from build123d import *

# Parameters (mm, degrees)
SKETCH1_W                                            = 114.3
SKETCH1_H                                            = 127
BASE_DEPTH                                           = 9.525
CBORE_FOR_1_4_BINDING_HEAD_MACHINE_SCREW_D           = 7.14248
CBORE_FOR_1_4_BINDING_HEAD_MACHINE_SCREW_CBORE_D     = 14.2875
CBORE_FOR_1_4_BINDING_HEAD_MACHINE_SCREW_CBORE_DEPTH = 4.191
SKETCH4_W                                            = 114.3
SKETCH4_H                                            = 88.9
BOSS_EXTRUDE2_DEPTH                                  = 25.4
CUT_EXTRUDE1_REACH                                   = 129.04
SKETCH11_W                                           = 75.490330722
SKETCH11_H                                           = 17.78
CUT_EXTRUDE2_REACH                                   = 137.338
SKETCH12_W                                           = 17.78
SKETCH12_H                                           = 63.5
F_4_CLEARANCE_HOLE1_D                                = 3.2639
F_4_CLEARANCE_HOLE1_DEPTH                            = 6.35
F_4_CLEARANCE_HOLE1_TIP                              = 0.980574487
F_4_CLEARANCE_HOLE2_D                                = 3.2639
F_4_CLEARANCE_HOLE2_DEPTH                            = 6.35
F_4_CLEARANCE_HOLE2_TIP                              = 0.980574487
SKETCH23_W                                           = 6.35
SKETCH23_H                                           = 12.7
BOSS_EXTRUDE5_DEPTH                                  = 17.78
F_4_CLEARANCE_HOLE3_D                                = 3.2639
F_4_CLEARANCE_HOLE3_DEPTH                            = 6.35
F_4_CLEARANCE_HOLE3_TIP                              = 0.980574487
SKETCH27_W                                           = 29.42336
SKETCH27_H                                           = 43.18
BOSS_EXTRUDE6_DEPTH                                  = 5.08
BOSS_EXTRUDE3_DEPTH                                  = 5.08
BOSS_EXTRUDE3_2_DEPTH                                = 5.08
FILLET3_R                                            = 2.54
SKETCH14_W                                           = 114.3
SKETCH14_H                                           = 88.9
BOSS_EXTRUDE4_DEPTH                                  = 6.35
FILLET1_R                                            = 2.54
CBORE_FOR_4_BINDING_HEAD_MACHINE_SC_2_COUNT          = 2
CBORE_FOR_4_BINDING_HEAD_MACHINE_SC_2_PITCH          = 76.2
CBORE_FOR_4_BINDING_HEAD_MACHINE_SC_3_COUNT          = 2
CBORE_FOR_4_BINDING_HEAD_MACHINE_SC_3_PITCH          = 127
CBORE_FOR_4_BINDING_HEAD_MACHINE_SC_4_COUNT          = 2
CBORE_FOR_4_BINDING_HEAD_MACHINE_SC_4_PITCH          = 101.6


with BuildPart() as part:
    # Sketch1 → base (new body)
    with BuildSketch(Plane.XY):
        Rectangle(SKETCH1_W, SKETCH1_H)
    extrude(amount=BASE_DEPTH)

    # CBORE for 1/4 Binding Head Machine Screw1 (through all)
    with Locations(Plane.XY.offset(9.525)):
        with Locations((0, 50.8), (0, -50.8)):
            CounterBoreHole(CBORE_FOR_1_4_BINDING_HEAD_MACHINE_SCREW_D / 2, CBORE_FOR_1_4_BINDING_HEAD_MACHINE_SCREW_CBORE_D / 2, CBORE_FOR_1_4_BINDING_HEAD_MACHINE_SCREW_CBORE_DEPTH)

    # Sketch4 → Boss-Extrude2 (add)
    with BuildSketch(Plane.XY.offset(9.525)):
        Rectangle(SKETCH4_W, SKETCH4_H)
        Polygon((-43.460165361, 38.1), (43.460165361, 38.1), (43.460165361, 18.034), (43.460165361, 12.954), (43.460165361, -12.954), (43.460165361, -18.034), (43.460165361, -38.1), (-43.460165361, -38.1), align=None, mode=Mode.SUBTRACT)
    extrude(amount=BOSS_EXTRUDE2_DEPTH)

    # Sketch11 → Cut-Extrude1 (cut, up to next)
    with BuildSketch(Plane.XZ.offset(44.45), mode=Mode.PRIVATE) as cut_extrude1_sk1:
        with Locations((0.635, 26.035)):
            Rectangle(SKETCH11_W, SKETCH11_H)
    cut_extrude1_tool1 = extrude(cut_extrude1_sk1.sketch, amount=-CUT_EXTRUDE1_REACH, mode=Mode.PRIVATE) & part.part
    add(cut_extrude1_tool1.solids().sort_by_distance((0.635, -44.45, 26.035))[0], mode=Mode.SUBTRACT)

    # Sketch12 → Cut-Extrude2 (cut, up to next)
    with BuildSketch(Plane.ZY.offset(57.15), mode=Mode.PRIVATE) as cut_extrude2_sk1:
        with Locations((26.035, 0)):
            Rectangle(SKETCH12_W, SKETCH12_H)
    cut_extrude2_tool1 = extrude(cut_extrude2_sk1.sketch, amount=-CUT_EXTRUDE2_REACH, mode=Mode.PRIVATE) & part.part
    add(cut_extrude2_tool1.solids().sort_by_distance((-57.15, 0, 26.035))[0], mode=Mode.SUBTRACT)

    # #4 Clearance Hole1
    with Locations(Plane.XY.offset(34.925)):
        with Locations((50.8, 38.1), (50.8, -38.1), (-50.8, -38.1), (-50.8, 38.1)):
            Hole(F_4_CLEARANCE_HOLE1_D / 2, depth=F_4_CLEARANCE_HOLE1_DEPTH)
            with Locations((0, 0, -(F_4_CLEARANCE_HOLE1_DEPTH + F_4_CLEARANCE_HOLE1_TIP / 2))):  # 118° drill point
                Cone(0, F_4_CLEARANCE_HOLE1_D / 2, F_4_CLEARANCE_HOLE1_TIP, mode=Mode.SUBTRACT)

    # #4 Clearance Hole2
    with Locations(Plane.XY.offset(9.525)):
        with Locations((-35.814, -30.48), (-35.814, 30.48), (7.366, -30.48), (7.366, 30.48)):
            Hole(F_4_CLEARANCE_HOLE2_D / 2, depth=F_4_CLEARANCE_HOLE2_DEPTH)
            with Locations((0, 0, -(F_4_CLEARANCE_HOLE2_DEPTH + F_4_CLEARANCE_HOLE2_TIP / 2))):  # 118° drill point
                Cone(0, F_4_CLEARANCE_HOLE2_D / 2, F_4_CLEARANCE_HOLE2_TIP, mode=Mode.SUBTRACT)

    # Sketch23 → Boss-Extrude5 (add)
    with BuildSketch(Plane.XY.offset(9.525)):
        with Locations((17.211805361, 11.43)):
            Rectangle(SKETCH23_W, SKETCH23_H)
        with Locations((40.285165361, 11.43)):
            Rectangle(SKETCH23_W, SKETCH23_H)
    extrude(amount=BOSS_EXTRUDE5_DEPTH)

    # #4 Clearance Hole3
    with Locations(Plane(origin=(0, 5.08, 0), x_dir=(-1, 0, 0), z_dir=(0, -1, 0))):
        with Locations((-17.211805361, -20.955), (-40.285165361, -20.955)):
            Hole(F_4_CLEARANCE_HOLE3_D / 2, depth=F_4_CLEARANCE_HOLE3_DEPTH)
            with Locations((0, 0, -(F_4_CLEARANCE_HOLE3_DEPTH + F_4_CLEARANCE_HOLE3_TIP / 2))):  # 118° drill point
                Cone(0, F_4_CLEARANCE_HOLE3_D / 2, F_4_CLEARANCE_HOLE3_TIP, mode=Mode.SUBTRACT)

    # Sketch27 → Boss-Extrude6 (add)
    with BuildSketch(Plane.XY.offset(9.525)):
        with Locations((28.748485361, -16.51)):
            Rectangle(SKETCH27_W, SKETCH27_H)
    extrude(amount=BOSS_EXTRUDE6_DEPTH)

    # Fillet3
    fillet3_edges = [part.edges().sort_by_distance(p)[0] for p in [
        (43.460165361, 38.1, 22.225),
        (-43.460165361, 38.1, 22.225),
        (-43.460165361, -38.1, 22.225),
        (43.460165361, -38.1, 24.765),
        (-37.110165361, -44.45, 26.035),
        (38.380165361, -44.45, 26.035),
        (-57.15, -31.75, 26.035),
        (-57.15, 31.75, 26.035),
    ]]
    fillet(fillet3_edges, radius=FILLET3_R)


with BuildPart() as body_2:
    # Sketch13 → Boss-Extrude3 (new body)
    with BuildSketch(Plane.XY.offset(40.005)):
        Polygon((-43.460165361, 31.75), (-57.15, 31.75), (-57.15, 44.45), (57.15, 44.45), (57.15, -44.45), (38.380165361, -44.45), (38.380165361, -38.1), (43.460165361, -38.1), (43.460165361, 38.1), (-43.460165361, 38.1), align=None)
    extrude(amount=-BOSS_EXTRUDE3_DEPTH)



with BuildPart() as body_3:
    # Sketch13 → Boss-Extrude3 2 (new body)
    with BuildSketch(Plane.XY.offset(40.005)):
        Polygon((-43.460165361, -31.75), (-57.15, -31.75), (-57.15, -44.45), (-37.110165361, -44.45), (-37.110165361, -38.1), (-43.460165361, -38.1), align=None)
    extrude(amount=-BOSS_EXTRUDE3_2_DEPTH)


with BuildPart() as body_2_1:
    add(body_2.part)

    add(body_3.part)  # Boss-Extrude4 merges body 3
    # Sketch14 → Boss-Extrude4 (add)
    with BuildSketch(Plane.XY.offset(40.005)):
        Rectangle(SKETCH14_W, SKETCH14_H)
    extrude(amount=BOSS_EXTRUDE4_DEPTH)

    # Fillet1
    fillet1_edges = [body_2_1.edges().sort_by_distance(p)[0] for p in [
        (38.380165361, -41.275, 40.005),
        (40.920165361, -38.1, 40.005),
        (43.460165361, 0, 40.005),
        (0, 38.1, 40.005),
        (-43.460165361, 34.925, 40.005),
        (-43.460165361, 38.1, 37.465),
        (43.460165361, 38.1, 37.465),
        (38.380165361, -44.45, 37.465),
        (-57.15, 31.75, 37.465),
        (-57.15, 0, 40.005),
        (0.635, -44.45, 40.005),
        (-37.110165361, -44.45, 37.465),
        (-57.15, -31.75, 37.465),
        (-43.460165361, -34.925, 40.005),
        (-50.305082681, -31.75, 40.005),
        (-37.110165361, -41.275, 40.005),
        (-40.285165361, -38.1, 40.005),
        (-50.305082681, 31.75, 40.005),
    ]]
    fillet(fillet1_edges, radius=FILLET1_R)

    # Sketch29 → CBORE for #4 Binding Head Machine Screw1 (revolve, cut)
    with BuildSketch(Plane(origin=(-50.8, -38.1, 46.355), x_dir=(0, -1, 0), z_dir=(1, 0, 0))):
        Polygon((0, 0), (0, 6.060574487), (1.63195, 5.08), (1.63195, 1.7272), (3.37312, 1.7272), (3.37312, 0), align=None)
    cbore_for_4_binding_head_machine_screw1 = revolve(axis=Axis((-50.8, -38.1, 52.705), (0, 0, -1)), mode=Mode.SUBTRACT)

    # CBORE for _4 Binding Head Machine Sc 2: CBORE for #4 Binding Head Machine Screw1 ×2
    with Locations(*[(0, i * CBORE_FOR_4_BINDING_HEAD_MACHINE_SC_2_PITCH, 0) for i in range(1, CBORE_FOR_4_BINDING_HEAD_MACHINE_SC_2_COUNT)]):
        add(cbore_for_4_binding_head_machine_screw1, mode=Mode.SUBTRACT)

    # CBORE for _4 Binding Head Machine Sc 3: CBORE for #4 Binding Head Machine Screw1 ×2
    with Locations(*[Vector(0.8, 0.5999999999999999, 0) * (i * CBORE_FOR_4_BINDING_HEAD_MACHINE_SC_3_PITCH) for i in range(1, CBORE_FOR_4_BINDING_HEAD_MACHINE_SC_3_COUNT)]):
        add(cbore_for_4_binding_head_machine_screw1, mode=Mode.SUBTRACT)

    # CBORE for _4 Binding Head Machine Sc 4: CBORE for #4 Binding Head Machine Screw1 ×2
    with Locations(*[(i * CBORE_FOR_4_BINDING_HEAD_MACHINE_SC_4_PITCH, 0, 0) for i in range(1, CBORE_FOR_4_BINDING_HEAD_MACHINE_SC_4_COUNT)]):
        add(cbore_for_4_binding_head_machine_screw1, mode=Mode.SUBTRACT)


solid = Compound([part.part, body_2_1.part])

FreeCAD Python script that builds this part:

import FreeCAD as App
import Part
import Sketcher

V = App.Vector
Q = App.Units.Quantity


def edges_at(feature, points):
    """Names of the edges that pass closest to the given points."""
    edges = feature.Shape.Edges
    near = lambda p: min(range(len(edges)), key=lambda i: edges[i].distToShape(Part.Vertex(*p))[0])
    return sorted({f"Edge{near(p) + 1}" for p in points})

doc = App.newDocument("Part")
params = doc.addObject("Spreadsheet::Sheet", "Params")
for row, (alias, value) in enumerate([
    ("sketch1_height", "5 in"),
    ("sketch1_width", "4.5 in"),
    ("pad1_length", "0.375 in"),
    ("hole_diameter", "0.2812 in"),
    ("hole_cbore_diameter", "0.5625 in"),
    ("hole_cbore_depth", "0.165 in"),
    ("sketch3_height", "3 in"),
    ("sketch3_width", "4.5 in"),
    ("sketch3_height2", "3.5 in"),
    ("pad2_length", "1 in"),
    ("sketch4_height", "0.7 in"),
    ("sketch5_width", "2.5 in"),
    ("sketch5_height", "0.7 in"),
    ("hole2_diameter", "0.1285 in"),
    ("hole2_depth", "0.25 in"),
    ("hole3_diameter", "0.1285 in"),
    ("hole3_depth", "0.25 in"),
    ("sketch8_height", "0.5 in"),
    ("sketch8_width", "0.25 in"),
    ("pad3_length", "0.7 in"),
    ("hole4_diameter", "0.1285 in"),
    ("hole4_depth", "0.25 in"),
    ("sketch10_height", "1.7 in"),
    ("pad4_length", "0.2 in"),
    ("fillet_radius", "0.1 in"),
    ("sketch11_height", "3 in"),
    ("sketch11_width", "0.2 in"),
    ("sketch11_width2", "4.5 in"),
    ("sketch11_height2", "3.5 in"),
    ("pad5_length", "0.2 in"),
    ("sketch12_height", "0.5 in"),
    ("pad6_length", "0.2 in"),
    ("sketch13_width", "4.5 in"),
    ("sketch13_height", "3.5 in"),
    ("pad7_length", "0.25 in"),
    ("fillet2_radius", "0.1 in"),
    ("sketch14_height", "0.068 in"),
    ("groove_angle", "360 deg"),
    ("linearpattern_pitch", "3 in"),
    ("linearpattern2_pitch", "5 in"),
    ("linearpattern3_pitch", "4 in"),
], start=1):
    params.set(f"A{row}", alias)
    params.set(f"B{row}", "=" + value)
    params.setAlias(f"B{row}", alias)

body = doc.addObject("PartDesign::Body", "Body")

# Sketch on XY plane
sketch1 = doc.addObject("Sketcher::SketchObject", "Sketch")
body.addObject(sketch1)
sketch1.AttachmentSupport = (doc.XY_Plane, [""])
sketch1.MapMode = "FlatFace"
sketch1.addGeometry([
    Part.LineSegment(V(-57, 64, 0), V(-57, -64, 0)),
    Part.LineSegment(V(-57, -64, 0), V(57, -64, 0)),
    Part.LineSegment(V(57, -64, 0), V(57, 64, 0)),
    Part.LineSegment(V(57, 64, 0), V(-57, 64, 0)),
], False)
sketch1.addConstraint([
    Sketcher.Constraint("Coincident", 0, 2, 1, 1),
    Sketcher.Constraint("Coincident", 1, 2, 2, 1),
    Sketcher.Constraint("Coincident", 2, 2, 3, 1),
    Sketcher.Constraint("Coincident", 3, 2, 0, 1),
    Sketcher.Constraint("Vertical", 0),
    Sketcher.Constraint("Horizontal", 1),
    Sketcher.Constraint("Vertical", 2),
    Sketcher.Constraint("Horizontal", 3),
    Sketcher.Constraint("Symmetric", 0, 2, 2, 2, -1, 1),
    Sketcher.Constraint("DistanceY", 0, 2, 0, 1, Q("5 in")),
    Sketcher.Constraint("DistanceX", 1, 1, 1, 2, Q("4.5 in")),
])
sketch1.setExpression("Constraints[9]", "Params.sketch1_height")
sketch1.setExpression("Constraints[10]", "Params.sketch1_width")
pad1 = doc.addObject("PartDesign::Pad", "Pad")
body.addObject(pad1)
pad1.Profile = sketch1
pad1.setExpression("Length", "Params.pad1_length")

# Sketch on XY plane
sketch2 = doc.addObject("Sketcher::SketchObject", "Sketch001")
body.addObject(sketch2)
sketch2.AttachmentSupport = (doc.XY_Plane, [""])
sketch2.MapMode = "FlatFace"
sketch2.AttachmentOffset = App.Placement(V(0, 0, 0.375 * 25.4), App.Rotation())
sketch2.addGeometry([
    Part.Circle(V(0, 50.8, 0), V(0, 0, 1), 3.6),
    Part.Circle(V(0, -50.8, 0), V(0, 0, 1), 3.6),
], False)
sketch2.addConstraint([
    Sketcher.Constraint("Equal", 0, 1),
    Sketcher.Constraint("Symmetric", 0, 3, 1, 3, -1, 1),
    Sketcher.Constraint("PointOnObject", 0, 3, -2),
    Sketcher.Constraint("DistanceY", -1, 1, 0, 3, Q("2 in")),
    Sketcher.Constraint("Diameter", 0, Q("0.2812 in")),
])
doc.recompute()
hole = doc.addObject("PartDesign::Hole", "Hole")
body.addObject(hole)
hole.Profile = sketch2
hole.ThreadType = "None"
hole.setExpression("Diameter", "Params.hole_diameter")
hole.DepthType = "ThroughAll"
hole.HoleCutType = "Counterbore"
hole.setExpression("HoleCutDiameter", "Params.hole_cbore_diameter")
hole.setExpression("HoleCutDepth", "Params.hole_cbore_depth")

# Sketch on XY plane
sketch3 = doc.addObject("Sketcher::SketchObject", "Sketch002")
body.addObject(sketch3)
sketch3.AttachmentSupport = (doc.XY_Plane, [""])
sketch3.MapMode = "FlatFace"
sketch3.AttachmentOffset = App.Placement(V(0, 0, 0.375 * 25.4), App.Rotation())
sketch3.addGeometry([
    Part.LineSegment(V(-57, 44, 0), V(-57, -44, 0)),  # 0
    Part.LineSegment(V(-57, -44, 0), V(57, -44, 0)),  # 1
    Part.LineSegment(V(57, -44, 0), V(57, 44, 0)),  # 2
    Part.LineSegment(V(57, 44, 0), V(-57, 44, 0)),  # 3
    Part.LineSegment(V(-43, -38, 0), V(-43, 38, 0)),  # 4
    Part.LineSegment(V(-43, 38, 0), V(43, 38, 0)),  # 5
    Part.LineSegment(V(43, 38, 0), V(43, -38, 0)),  # 6
    Part.LineSegment(V(43, -38, 0), V(-43, -38, 0)),  # 7
], False)
sketch3.addConstraint([
    Sketcher.Constraint("Coincident", 0, 2, 1, 1),
    Sketcher.Constraint("Coincident", 1, 2, 2, 1),
    Sketcher.Constraint("Coincident", 2, 2, 3, 1),
    Sketcher.Constraint("Coincident", 3, 2, 0, 1),
    Sketcher.Constraint("Coincident", 4, 2, 5, 1),
    Sketcher.Constraint("Coincident", 5, 2, 6, 1),
    Sketcher.Constraint("Coincident", 6, 2, 7, 1),
    Sketcher.Constraint("Coincident", 7, 2, 4, 1),
    Sketcher.Constraint("Vertical", 0),
    Sketcher.Constraint("Horizontal", 1),
    Sketcher.Constraint("Vertical", 2),
    Sketcher.Constraint("Horizontal", 3),
    Sketcher.Constraint("Vertical", 4),
    Sketcher.Constraint("Horizontal", 5),
    Sketcher.Constraint("Vertical", 6),
    Sketcher.Constraint("Horizontal", 7),
    Sketcher.Constraint("Symmetric", 0, 2, 2, 2, -1, 1),
    Sketcher.Constraint("Symmetric", 4, 2, 6, 2, -1, 1),
    Sketcher.Constraint("DistanceY", 4, 1, 4, 2, Q("3 in")),
    Sketcher.Constraint("DistanceX", 1, 1, 1, 2, Q("4.5 in")),
    Sketcher.Constraint("DistanceY", 0, 2, 0, 1, Q("3.5 in")),
    Sketcher.Constraint("DistanceX", 5, 1, 5, 2, 86.920331),
])
sketch3.setExpression("Constraints[18]", "Params.sketch3_height")
sketch3.setExpression("Constraints[19]", "Params.sketch3_width")
sketch3.setExpression("Constraints[20]", "Params.sketch3_height2")
pad2 = doc.addObject("PartDesign::Pad", "Pad001")
body.addObject(pad2)
pad2.Profile = sketch3
pad2.setExpression("Length", "Params.pad2_length")

# Sketch on XZ plane
sketch4 = doc.addObject("Sketcher::SketchObject", "Sketch003")
body.addObject(sketch4)
sketch4.AttachmentSupport = (doc.XZ_Plane, [""])
sketch4.MapMode = "FlatFace"
sketch4.AttachmentOffset = App.Placement(V(0, 0, 1.75 * 25.4), App.Rotation())
sketch4.addGeometry([
    Part.LineSegment(V(-37, 35, 0), V(-37, 17, 0)),
    Part.LineSegment(V(-37, 17, 0), V(38, 17, 0)),
    Part.LineSegment(V(38, 17, 0), V(38, 35, 0)),
    Part.LineSegment(V(38, 35, 0), V(-37, 35, 0)),
], False)
sketch4.addConstraint([
    Sketcher.Constraint("Coincident", 0, 2, 1, 1),
    Sketcher.Constraint("Coincident", 1, 2, 2, 1),
    Sketcher.Constraint("Coincident", 2, 2, 3, 1),
    Sketcher.Constraint("Coincident", 3, 2, 0, 1),
    Sketcher.Constraint("Vertical", 0),
    Sketcher.Constraint("Horizontal", 1),
    Sketcher.Constraint("Vertical", 2),
    Sketcher.Constraint("Horizontal", 3),
    Sketcher.Constraint("DistanceY", 0, 2, 0, 1, Q("0.7 in")),
    Sketcher.Constraint("DistanceY", -1, 1, 0, 2, Q("0.675 in")),
    Sketcher.Constraint("DistanceX", 1, 1, 1, 2, 75.490331),
    Sketcher.Constraint("DistanceX", 0, 2, -1, 1, 37.110165),
])
sketch4.setExpression("Constraints[8]", "Params.sketch4_height")
pocket1 = doc.addObject("PartDesign::Pocket", "Pocket")
body.addObject(pocket1)
pocket1.Profile = sketch4
pocket1.Type = "UpToFirst"

# Sketch on YZ plane
sketch5 = doc.addObject("Sketcher::SketchObject", "Sketch004")
body.addObject(sketch5)
sketch5.AttachmentSupport = (doc.YZ_Plane, [""])
sketch5.MapMode = "FlatFace"
sketch5.AttachmentOffset = App.Placement(V(0, 0, -2.25 * 25.4), App.Rotation())
sketch5.addGeometry([
    Part.LineSegment(V(32, 17, 0), V(-32, 17, 0)),
    Part.LineSegment(V(-32, 17, 0), V(-32, 35, 0)),
    Part.LineSegment(V(-32, 35, 0), V(32, 35, 0)),
    Part.LineSegment(V(32, 35, 0), V(32, 17, 0)),
], False)
sketch5.addConstraint([
    Sketcher.Constraint("Coincident", 0, 2, 1, 1),
    Sketcher.Constraint("Coincident", 1, 2, 2, 1),
    Sketcher.Constraint("Coincident", 2, 2, 3, 1),
    Sketcher.Constraint("Coincident", 3, 2, 0, 1),
    Sketcher.Constraint("Horizontal", 0),
    Sketcher.Constraint("Vertical", 1),
    Sketcher.Constraint("Horizontal", 2),
    Sketcher.Constraint("Vertical", 3),
    Sketcher.Constraint("DistanceX", 0, 2, 0, 1, Q("2.5 in")),
    Sketcher.Constraint("DistanceY", 1, 1, 1, 2, Q("0.7 in")),
    Sketcher.Constraint("DistanceX", 0, 2, -1, 1, Q("1.25 in")),
    Sketcher.Constraint("DistanceY", -1, 1, 0, 2, Q("0.675 in")),
])
sketch5.setExpression("Constraints[8]", "Params.sketch5_width")
sketch5.setExpression("Constraints[9]", "Params.sketch5_height")
pocket2 = doc.addObject("PartDesign::Pocket", "Pocket001")
body.addObject(pocket2)
pocket2.Profile = sketch5
pocket2.Type = "UpToFirst"
pocket2.Reversed = True

# Sketch on XY plane
sketch6 = doc.addObject("Sketcher::SketchObject", "Sketch005")
body.addObject(sketch6)
sketch6.AttachmentSupport = (doc.XY_Plane, [""])
sketch6.MapMode = "FlatFace"
sketch6.AttachmentOffset = App.Placement(V(0, 0, 1.375 * 25.4), App.Rotation())
sketch6.addGeometry([
    Part.Circle(V(50.8, 38.1, 0), V(0, 0, 1), 1.6),
    Part.Circle(V(50.8, -38.1, 0), V(0, 0, 1), 1.6),
    Part.Circle(V(-50.8, -38.1, 0), V(0, 0, 1), 1.6),
    Part.Circle(V(-50.8, 38.1, 0), V(0, 0, 1), 1.6),
], False)
sketch6.addConstraint([
    Sketcher.Constraint("Equal", 0, 1),
    Sketcher.Constraint("Equal", 1, 2),
    Sketcher.Constraint("Equal", 2, 3),
    Sketcher.Constraint("Symmetric", 0, 3, 2, 3, -1, 1),
    Sketcher.Constraint("Symmetric", 1, 3, 3, 3, -1, 1),
    Sketcher.Constraint("Symmetric", 1, 3, 2, 3, -2),
    Sketcher.Constraint("DistanceX", -1, 1, 0, 3, Q("2 in")),
    Sketcher.Constraint("DistanceY", 1, 3, 0, 3, Q("3 in")),
    Sketcher.Constraint("Diameter", 0, Q("0.1285 in")),
])
doc.recompute()
hole2 = doc.addObject("PartDesign::Hole", "Hole001")
body.addObject(hole2)
hole2.Profile = sketch6
hole2.ThreadType = "None"
hole2.setExpression("Diameter", "Params.hole2_diameter")
hole2.DepthType = "Dimension"
hole2.setExpression("Depth", "Params.hole2_depth")
hole2.DrillPoint = "Angled"
hole2.DrillPointAngle = 118

# Sketch on XY plane
sketch7 = doc.addObject("Sketcher::SketchObject", "Sketch006")
body.addObject(sketch7)
sketch7.AttachmentSupport = (doc.XY_Plane, [""])
sketch7.MapMode = "FlatFace"
sketch7.AttachmentOffset = App.Placement(V(0, 0, 0.375 * 25.4), App.Rotation())
sketch7.addGeometry([
    Part.Circle(V(-35.8, -30.5, 0), V(0, 0, 1), 1.6),
    Part.Circle(V(-35.8, 30.5, 0), V(0, 0, 1), 1.6),
    Part.Circle(V(7.4, -30.5, 0), V(0, 0, 1), 1.6),
    Part.Circle(V(7.4, 30.5, 0), V(0, 0, 1), 1.6),
], False)
sketch7.addConstraint([
    Sketcher.Constraint("Equal", 0, 1),
    Sketcher.Constraint("Equal", 1, 2),
    Sketcher.Constraint("Equal", 2, 3),
    Sketcher.Constraint("Symmetric", 0, 3, 1, 3, -1),
    Sketcher.Constraint("Symmetric", 2, 3, 3, 3, -1),
    Sketcher.Constraint("Horizontal", 0, 3, 2, 3),
    Sketcher.Constraint("Diameter", 0, Q("0.1285 in")),
    Sketcher.Constraint("DistanceY", 0, 3, -1, 1, Q("1.2 in")),
    Sketcher.Constraint("DistanceX", 0, 3, 2, 3, Q("1.7 in")),
    Sketcher.Constraint("DistanceX", 0, 3, -1, 1, Q("1.41 in")),
])
doc.recompute()
hole3 = doc.addObject("PartDesign::Hole", "Hole002")
body.addObject(hole3)
hole3.Profile = sketch7
hole3.ThreadType = "None"
hole3.setExpression("Diameter", "Params.hole3_diameter")
hole3.DepthType = "Dimension"
hole3.setExpression("Depth", "Params.hole3_depth")
hole3.DrillPoint = "Angled"
hole3.DrillPointAngle = 118

# Sketch on XY plane
sketch8 = doc.addObject("Sketcher::SketchObject", "Sketch007")
body.addObject(sketch8)
sketch8.AttachmentSupport = (doc.XY_Plane, [""])
sketch8.MapMode = "FlatFace"
sketch8.AttachmentOffset = App.Placement(V(0, 0, 0.375 * 25.4), App.Rotation())
sketch8.addGeometry([
    Part.LineSegment(V(14, 18, 0), V(14, 5, 0)),  # 0
    Part.LineSegment(V(14, 5, 0), V(20, 5, 0)),  # 1
    Part.LineSegment(V(20, 5, 0), V(20, 18, 0)),  # 2
    Part.LineSegment(V(20, 18, 0), V(14, 18, 0)),  # 3
    Part.LineSegment(V(37, 18, 0), V(37, 5, 0)),  # 4
    Part.LineSegment(V(37, 5, 0), V(43, 5, 0)),  # 5
    Part.LineSegment(V(43, 5, 0), V(43, 18, 0)),  # 6
    Part.LineSegment(V(43, 18, 0), V(37, 18, 0)),  # 7
], False)
sketch8.addConstraint([
    Sketcher.Constraint("Coincident", 0, 2, 1, 1),
    Sketcher.Constraint("Coincident", 1, 2, 2, 1),
    Sketcher.Constraint("Coincident", 2, 2, 3, 1),
    Sketcher.Constraint("Coincident", 3, 2, 0, 1),
    Sketcher.Constraint("Coincident", 4, 2, 5, 1),
    Sketcher.Constraint("Coincident", 5, 2, 6, 1),
    Sketcher.Constraint("Coincident", 6, 2, 7, 1),
    Sketcher.Constraint("Coincident", 7, 2, 4, 1),
    Sketcher.Constraint("Vertical", 0),
    Sketcher.Constraint("Horizontal", 1),
    Sketcher.Constraint("Vertical", 2),
    Sketcher.Constraint("Horizontal", 3),
    Sketcher.Constraint("Vertical", 4),
    Sketcher.Constraint("Horizontal", 5),
    Sketcher.Constraint("Vertical", 6),
    Sketcher.Constraint("Horizontal", 7),
    Sketcher.Constraint("Horizontal", 1, 2, 4, 2),
    Sketcher.Constraint("Horizontal", 3, 2, 6, 2),
    Sketcher.Constraint("Equal", 3, 5),
    Sketcher.Constraint("DistanceY", 0, 2, 0, 1, Q("0.5 in")),
    Sketcher.Constraint("DistanceX", 1, 1, 1, 2, Q("0.25 in")),
    Sketcher.Constraint("DistanceY", -1, 1, 0, 2, Q("0.2 in")),
    Sketcher.Constraint("DistanceX", 1, 2, 4, 2, Q("0.6584 in")),
    Sketcher.Constraint("DistanceX", -1, 1, 0, 2, 14.036805),
])
sketch8.setExpression("Constraints[19]", "Params.sketch8_height")
sketch8.setExpression("Constraints[20]", "Params.sketch8_width")
pad3 = doc.addObject("PartDesign::Pad", "Pad002")
body.addObject(pad3)
pad3.Profile = sketch8
pad3.setExpression("Length", "Params.pad3_length")

# Sketch on XZ plane
sketch9 = doc.addObject("Sketcher::SketchObject", "Sketch008")
body.addObject(sketch9)
sketch9.AttachmentSupport = (doc.XZ_Plane, [""])
sketch9.MapMode = "FlatFace"
sketch9.AttachmentOffset = App.Placement(V(0, 0, -0.2 * 25.4), App.Rotation())
sketch9.addGeometry([
    Part.Circle(V(17.2, 21, 0), V(0, 0, 1), 1.6),
    Part.Circle(V(40.3, 21, 0), V(0, 0, 1), 1.6),
], False)
sketch9.addConstraint([
    Sketcher.Constraint("Equal", 0, 1),
    Sketcher.Constraint("Horizontal", 0, 3, 1, 3),
    Sketcher.Constraint("Diameter", 0, Q("0.1285 in")),
    Sketcher.Constraint("DistanceY", -1, 1, 0, 3, Q("0.825 in")),
    Sketcher.Constraint("DistanceX", 0, 3, 1, 3, Q("0.9084 in")),
    Sketcher.Constraint("DistanceX", -1, 1, 0, 3, 17.211805),
])
doc.recompute()
hole4 = doc.addObject("PartDesign::Hole", "Hole003")
body.addObject(hole4)
hole4.Profile = sketch9
hole4.ThreadType = "None"
hole4.setExpression("Diameter", "Params.hole4_diameter")
hole4.DepthType = "Dimension"
hole4.setExpression("Depth", "Params.hole4_depth")
hole4.DrillPoint = "Angled"
hole4.DrillPointAngle = 118

# Sketch on XY plane
sketch10 = doc.addObject("Sketcher::SketchObject", "Sketch009")
body.addObject(sketch10)
sketch10.AttachmentSupport = (doc.XY_Plane, [""])
sketch10.MapMode = "FlatFace"
sketch10.AttachmentOffset = App.Placement(V(0, 0, 0.375 * 25.4), App.Rotation())
sketch10.addGeometry([
    Part.LineSegment(V(14, 5, 0), V(14, -38, 0)),
    Part.LineSegment(V(14, -38, 0), V(43, -38, 0)),
    Part.LineSegment(V(43, -38, 0), V(43, 5, 0)),
    Part.LineSegment(V(43, 5, 0), V(14, 5, 0)),
], False)
sketch10.addConstraint([
    Sketcher.Constraint("Coincident", 0, 2, 1, 1),
    Sketcher.Constraint("Coincident", 1, 2, 2, 1),
    Sketcher.Constraint("Coincident", 2, 2, 3, 1),
    Sketcher.Constraint("Coincident", 3, 2, 0, 1),
    Sketcher.Constraint("Vertical", 0),
    Sketcher.Constraint("Horizontal", 1),
    Sketcher.Constraint("Vertical", 2),
    Sketcher.Constraint("Horizontal", 3),
    Sketcher.Constraint("DistanceY", 0, 2, 0, 1, Q("1.7 in")),
    Sketcher.Constraint("DistanceY", 0, 2, -1, 1, Q("1.5 in")),
    Sketcher.Constraint("DistanceX", 1, 1, 1, 2, Q("1.1584 in")),
    Sketcher.Constraint("DistanceX", -1, 1, 0, 2, 14.036805),
])
sketch10.setExpression("Constraints[8]", "Params.sketch10_height")
pad4 = doc.addObject("PartDesign::Pad", "Pad003")
body.addObject(pad4)
pad4.Profile = sketch10
pad4.setExpression("Length", "Params.pad4_length")
doc.recompute()

fillet = doc.addObject("PartDesign::Fillet", "Fillet")
body.addObject(fillet)
fillet.Base = (pad4, edges_at(pad4, [
    (43.46, 38.1, 22.225),
    (-43.46, 38.1, 22.225),
    (-43.46, -38.1, 22.225),
    (43.46, -38.1, 24.765),
    (-37.11, -44.45, 26.035),
    (38.38, -44.45, 26.035),
    (-57.15, -31.75, 26.035),
    (-57.15, 31.75, 26.035),
]))
fillet.setExpression("Radius", "Params.fillet_radius")
body2 = doc.addObject("PartDesign::Body", "Body001")

# Sketch on XY plane
sketch11 = doc.addObject("Sketcher::SketchObject", "Sketch010")
body2.addObject(sketch11)
sketch11.AttachmentSupport = (doc.getObject("XY_Plane001"), [""])
sketch11.MapMode = "FlatFace"
sketch11.AttachmentOffset = App.Placement(V(0, 0, 1.575 * 25.4), App.Rotation())
sketch11.addGeometry([
    Part.LineSegment(V(-57, 32, 0), V(-43, 32, 0)),  # 0
    Part.LineSegment(V(-43, 32, 0), V(-43, 38, 0)),  # 1
    Part.LineSegment(V(-43, 38, 0), V(43, 38, 0)),  # 2
    Part.LineSegment(V(43, 38, 0), V(43, -38, 0)),  # 3
    Part.LineSegment(V(43, -38, 0), V(38, -38, 0)),  # 4
    Part.LineSegment(V(38, -38, 0), V(38, -44, 0)),  # 5
    Part.LineSegment(V(38, -44, 0), V(57, -44, 0)),  # 6
    Part.LineSegment(V(57, -44, 0), V(57, 44, 0)),  # 7
    Part.LineSegment(V(57, 44, 0), V(-57, 44, 0)),  # 8
    Part.LineSegment(V(-57, 44, 0), V(-57, 32, 0)),  # 9
], False)
sketch11.addConstraint([
    Sketcher.Constraint("Coincident", 0, 2, 1, 1),
    Sketcher.Constraint("Coincident", 1, 2, 2, 1),
    Sketcher.Constraint("Coincident", 2, 2, 3, 1),
    Sketcher.Constraint("Coincident", 3, 2, 4, 1),
    Sketcher.Constraint("Coincident", 4, 2, 5, 1),
    Sketcher.Constraint("Coincident", 5, 2, 6, 1),
    Sketcher.Constraint("Coincident", 6, 2, 7, 1),
    Sketcher.Constraint("Coincident", 7, 2, 8, 1),
    Sketcher.Constraint("Coincident", 8, 2, 9, 1),
    Sketcher.Constraint("Coincident", 9, 2, 0, 1),
    Sketcher.Constraint("Horizontal", 0),
    Sketcher.Constraint("Vertical", 1),
    Sketcher.Constraint("Horizontal", 2),
    Sketcher.Constraint("Vertical", 3),
    Sketcher.Constraint("Horizontal", 4),
    Sketcher.Constraint("Vertical", 5),
    Sketcher.Constraint("Horizontal", 6),
    Sketcher.Constraint("Vertical", 7),
    Sketcher.Constraint("Horizontal", 8),
    Sketcher.Constraint("Vertical", 9),
    Sketcher.Constraint("Symmetric", 1, 2, 3, 2, -1, 1),
    Sketcher.Constraint("Symmetric", 6, 2, 8, 2, -1, 1),
    Sketcher.Constraint("Equal", 1, 5),
    Sketcher.Constraint("DistanceY", 3, 2, 3, 1, Q("3 in")),
    Sketcher.Constraint("DistanceX", 4, 2, 4, 1, Q("0.2 in")),
    Sketcher.Constraint("DistanceX", 8, 2, 8, 1, Q("4.5 in")),
    Sketcher.Constraint("DistanceY", 7, 1, 7, 2, Q("3.5 in")),
    Sketcher.Constraint("DistanceX", 2, 1, 2, 2, 86.920331),
])
sketch11.setExpression("Constraints[23]", "Params.sketch11_height")
sketch11.setExpression("Constraints[24]", "Params.sketch11_width")
sketch11.setExpression("Constraints[25]", "Params.sketch11_width2")
sketch11.setExpression("Constraints[26]", "Params.sketch11_height2")
pad5 = doc.addObject("PartDesign::Pad", "Pad004")
body2.addObject(pad5)
pad5.Profile = sketch11
pad5.setExpression("Length", "Params.pad5_length")
pad5.Reversed = True
body3 = doc.addObject("PartDesign::Body", "Body002")

# Sketch on XY plane
sketch12 = doc.addObject("Sketcher::SketchObject", "Sketch011")
body3.addObject(sketch12)
sketch12.AttachmentSupport = (doc.getObject("XY_Plane002"), [""])
sketch12.MapMode = "FlatFace"
sketch12.AttachmentOffset = App.Placement(V(0, 0, 1.575 * 25.4), App.Rotation())
sketch12.addGeometry([
    Part.LineSegment(V(-43, -32, 0), V(-57, -32, 0)),  # 0
    Part.LineSegment(V(-57, -32, 0), V(-57, -44, 0)),  # 1
    Part.LineSegment(V(-57, -44, 0), V(-37, -44, 0)),  # 2
    Part.LineSegment(V(-37, -44, 0), V(-37, -38, 0)),  # 3
    Part.LineSegment(V(-37, -38, 0), V(-43, -38, 0)),  # 4
    Part.LineSegment(V(-43, -38, 0), V(-43, -32, 0)),  # 5
], False)
sketch12.addConstraint([
    Sketcher.Constraint("Coincident", 0, 2, 1, 1),
    Sketcher.Constraint("Coincident", 1, 2, 2, 1),
    Sketcher.Constraint("Coincident", 2, 2, 3, 1),
    Sketcher.Constraint("Coincident", 3, 2, 4, 1),
    Sketcher.Constraint("Coincident", 4, 2, 5, 1),
    Sketcher.Constraint("Coincident", 5, 2, 0, 1),
    Sketcher.Constraint("Horizontal", 0),
    Sketcher.Constraint("Vertical", 1),
    Sketcher.Constraint("Horizontal", 2),
    Sketcher.Constraint("Vertical", 3),
    Sketcher.Constraint("Horizontal", 4),
    Sketcher.Constraint("Vertical", 5),
    Sketcher.Constraint("Equal", 4, 3),
    Sketcher.Constraint("Equal", 3, 5),
    Sketcher.Constraint("DistanceY", 1, 2, 1, 1, Q("0.5 in")),
    Sketcher.Constraint("DistanceY", 3, 2, -1, 1, Q("1.5 in")),
    Sketcher.Constraint("DistanceX", 0, 2, -1, 1, Q("2.25 in")),
    Sketcher.Constraint("DistanceX", 0, 2, 0, 1, 13.689835),
])
sketch12.setExpression("Constraints[14]", "Params.sketch12_height")
pad6 = doc.addObject("PartDesign::Pad", "Pad005")
body3.addObject(pad6)
pad6.Profile = sketch12
pad6.setExpression("Length", "Params.pad6_length")
pad6.Reversed = True
body2.AllowCompound = True
doc.recompute()

boolean = doc.addObject("PartDesign::Boolean", "Boolean")
body2.addObject(boolean)
boolean.Type = "Fuse"
boolean.addObjects([body3])

# Sketch on XY plane
sketch13 = doc.addObject("Sketcher::SketchObject", "Sketch012")
body2.addObject(sketch13)
sketch13.AttachmentSupport = (doc.getObject("XY_Plane001"), [""])
sketch13.MapMode = "FlatFace"
sketch13.AttachmentOffset = App.Placement(V(0, 0, 1.575 * 25.4), App.Rotation())
sketch13.addGeometry([
    Part.LineSegment(V(-57, 44, 0), V(-57, -44, 0)),
    Part.LineSegment(V(-57, -44, 0), V(57, -44, 0)),
    Part.LineSegment(V(57, -44, 0), V(57, 44, 0)),
    Part.LineSegment(V(57, 44, 0), V(-57, 44, 0)),
], False)
sketch13.addConstraint([
    Sketcher.Constraint("Coincident", 0, 2, 1, 1),
    Sketcher.Constraint("Coincident", 1, 2, 2, 1),
    Sketcher.Constraint("Coincident", 2, 2, 3, 1),
    Sketcher.Constraint("Coincident", 3, 2, 0, 1),
    Sketcher.Constraint("Vertical", 0),
    Sketcher.Constraint("Horizontal", 1),
    Sketcher.Constraint("Vertical", 2),
    Sketcher.Constraint("Horizontal", 3),
    Sketcher.Constraint("Symmetric", 0, 2, 2, 2, -1, 1),
    Sketcher.Constraint("DistanceX", 1, 1, 1, 2, Q("4.5 in")),
    Sketcher.Constraint("DistanceY", 0, 2, 0, 1, Q("3.5 in")),
])
sketch13.setExpression("Constraints[9]", "Params.sketch13_width")
sketch13.setExpression("Constraints[10]", "Params.sketch13_height")
pad7 = doc.addObject("PartDesign::Pad", "Pad006")
body2.addObject(pad7)
pad7.Profile = sketch13
pad7.setExpression("Length", "Params.pad7_length")
doc.recompute()

fillet2 = doc.addObject("PartDesign::Fillet", "Fillet001")
body2.addObject(fillet2)
fillet2.Base = (pad7, edges_at(pad7, [
    (38.38, -41.275, 40.005),
    (40.92, -38.1, 40.005),
    (43.46, 0, 40.005),
    (0, 38.1, 40.005),
    (-43.46, 34.925, 40.005),
    (-43.46, 38.1, 37.465),
    (43.46, 38.1, 37.465),
    (38.38, -44.45, 37.465),
    (-57.15, 31.75, 37.465),
    (-57.15, 0, 40.005),
    (0.635, -44.45, 40.005),
    (-37.11, -44.45, 37.465),
    (-57.15, -31.75, 37.465),
    (-43.46, -34.925, 40.005),
    (-50.305, -31.75, 40.005),
    (-37.11, -41.275, 40.005),
    (-40.285, -38.1, 40.005),
    (-50.305, 31.75, 40.005),
]))
fillet2.setExpression("Radius", "Params.fillet2_radius")

# Sketch on YZ plane
sketch14 = doc.addObject("Sketcher::SketchObject", "Sketch013")
body2.addObject(sketch14)
sketch14.AttachmentSupport = (doc.getObject("YZ_Plane001"), [""])
sketch14.MapMode = "FlatFace"
sketch14.AttachmentOffset = App.Placement(V(0, 0, -2 * 25.4), App.Rotation())
sketch14.addGeometry([
    Part.LineSegment(V(-38.1, 40.3, 0), V(-38.1, 46.4, 0)),  # 0
    Part.LineSegment(V(-38.1, 46.4, 0), V(-41.5, 46.4, 0)),  # 1
    Part.LineSegment(V(-41.5, 46.4, 0), V(-41.5, 44.6, 0)),  # 2
    Part.LineSegment(V(-41.5, 44.6, 0), V(-39.7, 44.6, 0)),  # 3
    Part.LineSegment(V(-39.7, 44.6, 0), V(-39.7, 41.3, 0)),  # 4
    Part.LineSegment(V(-39.7, 41.3, 0), V(-38.1, 40.3, 0)),  # 5
], False)
sketch14.addGeometry(Part.LineSegment(V(-38.1, 46.4, 0), V(-38.1, 40.3, 0)), True)  # axis
sketch14.addConstraint([
    Sketcher.Constraint("Coincident", 0, 2, 1, 1),
    Sketcher.Constraint("Coincident", 1, 2, 2, 1),
    Sketcher.Constraint("Coincident", 2, 2, 3, 1),
    Sketcher.Constraint("Coincident", 3, 2, 4, 1),
    Sketcher.Constraint("Coincident", 4, 2, 5, 1),
    Sketcher.Constraint("Coincident", 5, 2, 0, 1),
    Sketcher.Constraint("Vertical", 0),
    Sketcher.Constraint("Horizontal", 1),
    Sketcher.Constraint("Vertical", 2),
    Sketcher.Constraint("Horizontal", 3),
    Sketcher.Constraint("Vertical", 4),
    Sketcher.Constraint("Vertical", 6),
    Sketcher.Constraint("Coincident", 6, 1, 0, 2),
    Sketcher.Constraint("Equal", 0, 6),
    Sketcher.Constraint("Angle", 5, Q("-31 deg")),
    Sketcher.Constraint("DistanceX", 0, 2, -1, 1, Q("1.5 in")),
    Sketcher.Constraint("DistanceY", 4, 2, 0, 2, Q("0.2 in")),
    Sketcher.Constraint("DistanceY", 2, 2, 2, 1, Q("0.068 in")),
    Sketcher.Constraint("DistanceX", 1, 2, 1, 1, Q("0.1328 in")),
    Sketcher.Constraint("DistanceY", -1, 1, 0, 2, Q("1.825 in")),
    Sketcher.Constraint("DistanceX", 3, 1, 3, 2, 1.74117),
])
sketch14.setExpression("Constraints[17]", "Params.sketch14_height")
groove = doc.addObject("PartDesign::Groove", "Groove")
body2.addObject(groove)
groove.Profile = sketch14
groove.ReferenceAxis = (sketch14, ["Axis0"])
groove.setExpression("Angle", "Params.groove_angle")
doc.recompute()

linearpattern = doc.addObject("PartDesign::LinearPattern", "LinearPattern")
body2.addObject(linearpattern)
linearpattern.Originals = [groove]
linearpattern.Direction = (doc.getObject("Y_Axis001"), [""])
linearpattern.Mode = "offset"
linearpattern.setExpression("Offset", "Params.linearpattern_pitch")
linearpattern.Occurrences = 2
body2.Tip = linearpattern
doc.recompute()

datumline = doc.addObject("PartDesign::Line", "DatumLine")
body2.addObject(datumline)
datumline.Placement = App.Placement(V(0, 0, 0), App.Rotation(V(0, 0, 1), V(0.8, 0.6, 0)))
linearpattern2 = doc.addObject("PartDesign::LinearPattern", "LinearPattern001")
body2.addObject(linearpattern2)
linearpattern2.Originals = [groove]
linearpattern2.Direction = (datumline, [""])
linearpattern2.Mode = "offset"
linearpattern2.setExpression("Offset", "Params.linearpattern2_pitch")
linearpattern2.Occurrences = 2
body2.Tip = linearpattern2
doc.recompute()

linearpattern3 = doc.addObject("PartDesign::LinearPattern", "LinearPattern002")
body2.addObject(linearpattern3)
linearpattern3.Originals = [groove]
linearpattern3.Direction = (doc.getObject("X_Axis001"), [""])
linearpattern3.Mode = "offset"
linearpattern3.setExpression("Offset", "Params.linearpattern3_pitch")
linearpattern3.Occurrences = 2
body2.Tip = linearpattern3

doc.recompute()
